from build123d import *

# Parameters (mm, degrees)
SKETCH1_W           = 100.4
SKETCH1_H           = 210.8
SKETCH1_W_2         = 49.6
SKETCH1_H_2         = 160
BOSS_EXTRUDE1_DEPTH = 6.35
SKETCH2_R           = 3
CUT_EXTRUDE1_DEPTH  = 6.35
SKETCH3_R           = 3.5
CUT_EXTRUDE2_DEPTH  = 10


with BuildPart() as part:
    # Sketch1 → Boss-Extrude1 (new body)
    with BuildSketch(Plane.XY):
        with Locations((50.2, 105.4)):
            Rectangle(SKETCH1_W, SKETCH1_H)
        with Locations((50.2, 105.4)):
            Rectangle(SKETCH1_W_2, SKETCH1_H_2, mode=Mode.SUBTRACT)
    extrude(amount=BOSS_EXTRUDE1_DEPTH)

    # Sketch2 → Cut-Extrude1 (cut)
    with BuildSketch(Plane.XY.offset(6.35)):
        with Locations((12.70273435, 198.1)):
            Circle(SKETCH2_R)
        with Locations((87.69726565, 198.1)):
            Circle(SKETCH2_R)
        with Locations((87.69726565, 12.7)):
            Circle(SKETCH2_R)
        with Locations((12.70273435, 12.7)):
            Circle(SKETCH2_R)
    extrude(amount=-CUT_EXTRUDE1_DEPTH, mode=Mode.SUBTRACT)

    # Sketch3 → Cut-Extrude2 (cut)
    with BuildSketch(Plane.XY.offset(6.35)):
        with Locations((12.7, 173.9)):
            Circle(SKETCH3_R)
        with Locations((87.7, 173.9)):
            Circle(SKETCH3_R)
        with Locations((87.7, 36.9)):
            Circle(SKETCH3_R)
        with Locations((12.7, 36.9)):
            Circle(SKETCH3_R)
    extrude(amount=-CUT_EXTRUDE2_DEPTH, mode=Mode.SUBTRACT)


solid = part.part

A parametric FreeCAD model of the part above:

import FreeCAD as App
import Part
import Sketcher


def add_polygon(sketch, points):
    """Adds a closed chain of lines whose ends are joined by coincident constraints."""
    first, n = sketch.GeometryCount, len(points)
    for a, b in zip(points, points[1:] + points[:1]):
        sketch.addGeometry(Part.LineSegment(App.Vector(*a, 0), App.Vector(*b, 0)), False)
    for i in range(n):
        sketch.addConstraint(Sketcher.Constraint("Coincident", first + i, 2, first + (i + 1) % n, 1))

doc = App.newDocument("Part")
body = doc.addObject("PartDesign::Body", "Body")

sketch1 = body.newObject("Sketcher::SketchObject", "Sketch")
sketch1.AttachmentSupport = (doc.getObject("XY_Plane"), [""])
sketch1.MapMode = "FlatFace"
add_polygon(sketch1, [(0, 211), (0, 0), (100, 0), (100, 211)])
add_polygon(sketch1, [(75, 25), (25, 25), (25, 185), (75, 185)])
sketch1.addConstraint([
    Sketcher.Constraint("Vertical", 0),
    Sketcher.Constraint("Horizontal", 1),
    Sketcher.Constraint("Vertical", 2),
    Sketcher.Constraint("Horizontal", 3),
    Sketcher.Constraint("Horizontal", 4),
    Sketcher.Constraint("Vertical", 5),
    Sketcher.Constraint("Horizontal", 6),
    Sketcher.Constraint("Vertical", 7),
    Sketcher.Constraint("Coincident", 0, 2, -1, 1),
    Sketcher.Constraint("DistanceY", 5, 1, 5, 2, 160.0),
    Sketcher.Constraint("DistanceX", 1, 1, 1, 2, 100.4),
    Sketcher.Constraint("DistanceX", 4, 2, 4, 1, 49.6),
    Sketcher.Constraint("DistanceY", 0, 2, 0, 1, 210.8),
    Sketcher.Constraint("DistanceX", -1, 1, 6, 2, 75.0),
    Sketcher.Constraint("DistanceY", -1, 1, 4, 2, 25.4),
])
pad1 = body.newObject("PartDesign::Pad", "Pad")
pad1.Profile = sketch1
pad1.Length = 6.35

sketch2 = body.newObject("Sketcher::SketchObject", "Sketch001")
sketch2.AttachmentSupport = (doc.getObject("XY_Plane"), [""])
sketch2.MapMode = "FlatFace"
sketch2.AttachmentOffset = App.Placement(App.Vector(0, 0, 6.35), App.Rotation())
sketch2.addGeometry([
    Part.Circle(App.Vector(12.7, 198.1, 0), App.Vector(0, 0, 1), 3),
    Part.Circle(App.Vector(87.7, 198.1, 0), App.Vector(0, 0, 1), 3),
    Part.Circle(App.Vector(87.7, 12.7, 0), App.Vector(0, 0, 1), 3),
    Part.Circle(App.Vector(12.7, 12.7, 0), App.Vector(0, 0, 1), 3),
], False)
sketch2.addConstraint([
    Sketcher.Constraint("Equal", 0, 1),
    Sketcher.Constraint("Equal", 1, 2),
    Sketcher.Constraint("Equal", 2, 3),
    Sketcher.Constraint("Horizontal", 0, 3, 1, 3),
    Sketcher.Constraint("Horizontal", 2, 3, 3, 3),
    Sketcher.Constraint("Vertical", 1, 3, 2, 3),
    Sketcher.Constraint("Vertical", 0, 3, 3, 3),
    Sketcher.Constraint("Diameter", 0, 6.0),
    Sketcher.Constraint("DistanceY", -1, 1, 0, 3, 198.1),
    Sketcher.Constraint("DistanceY", -1, 1, 2, 3, 12.7),
    Sketcher.Constraint("DistanceX", 0, 3, 1, 3, 74.994531),
    Sketcher.Constraint("DistanceX", -1, 1, 0, 3, 12.702734),
])
pocket1 = body.newObject("PartDesign::Pocket", "Pocket")
pocket1.Profile = sketch2
pocket1.Length = 6.35

sketch3 = body.newObject("Sketcher::SketchObject", "Sketch002")
sketch3.AttachmentSupport = (doc.getObject("XY_Plane"), [""])
sketch3.MapMode = "FlatFace"
sketch3.AttachmentOffset = App.Placement(App.Vector(0, 0, 6.35), App.Rotation())
sketch3.addGeometry([
    Part.Circle(App.Vector(12.7, 173.9, 0), App.Vector(0, 0, 1), 3.5),
    Part.Circle(App.Vector(87.7, 173.9, 0), App.Vector(0, 0, 1), 3.5),
    Part.Circle(App.Vector(87.7, 36.9, 0), App.Vector(0, 0, 1), 3.5),
    Part.Circle(App.Vector(12.7, 36.9, 0), App.Vector(0, 0, 1), 3.5),
], False)
sketch3.addConstraint([
    Sketcher.Constraint("Equal", 0, 1),
    Sketcher.Constraint("Equal", 1, 2),
    Sketcher.Constraint("Equal", 2, 3),
    Sketcher.Constraint("Horizontal", 0, 3, 1, 3),
    Sketcher.Constraint("Horizontal", 2, 3, 3, 3),
    Sketcher.Constraint("Vertical", 1, 3, 2, 3),
    Sketcher.Constraint("Vertical", 0, 3, 3, 3),
    Sketcher.Constraint("Diameter", 0, 7.0),
    Sketcher.Constraint("DistanceX", 0, 3, 1, 3, 75.0),
    Sketcher.Constraint("DistanceY", 2, 3, 1, 3, 137.0),
    Sketcher.Constraint("DistanceX", -1, 1, 0, 3, 12.7),
    Sketcher.Constraint("DistanceY", -1, 1, 0, 3, 173.9),
])
pocket2 = body.newObject("PartDesign::Pocket", "Pocket001")
pocket2.Profile = sketch3
pocket2.Length = 10

doc.recompute()
